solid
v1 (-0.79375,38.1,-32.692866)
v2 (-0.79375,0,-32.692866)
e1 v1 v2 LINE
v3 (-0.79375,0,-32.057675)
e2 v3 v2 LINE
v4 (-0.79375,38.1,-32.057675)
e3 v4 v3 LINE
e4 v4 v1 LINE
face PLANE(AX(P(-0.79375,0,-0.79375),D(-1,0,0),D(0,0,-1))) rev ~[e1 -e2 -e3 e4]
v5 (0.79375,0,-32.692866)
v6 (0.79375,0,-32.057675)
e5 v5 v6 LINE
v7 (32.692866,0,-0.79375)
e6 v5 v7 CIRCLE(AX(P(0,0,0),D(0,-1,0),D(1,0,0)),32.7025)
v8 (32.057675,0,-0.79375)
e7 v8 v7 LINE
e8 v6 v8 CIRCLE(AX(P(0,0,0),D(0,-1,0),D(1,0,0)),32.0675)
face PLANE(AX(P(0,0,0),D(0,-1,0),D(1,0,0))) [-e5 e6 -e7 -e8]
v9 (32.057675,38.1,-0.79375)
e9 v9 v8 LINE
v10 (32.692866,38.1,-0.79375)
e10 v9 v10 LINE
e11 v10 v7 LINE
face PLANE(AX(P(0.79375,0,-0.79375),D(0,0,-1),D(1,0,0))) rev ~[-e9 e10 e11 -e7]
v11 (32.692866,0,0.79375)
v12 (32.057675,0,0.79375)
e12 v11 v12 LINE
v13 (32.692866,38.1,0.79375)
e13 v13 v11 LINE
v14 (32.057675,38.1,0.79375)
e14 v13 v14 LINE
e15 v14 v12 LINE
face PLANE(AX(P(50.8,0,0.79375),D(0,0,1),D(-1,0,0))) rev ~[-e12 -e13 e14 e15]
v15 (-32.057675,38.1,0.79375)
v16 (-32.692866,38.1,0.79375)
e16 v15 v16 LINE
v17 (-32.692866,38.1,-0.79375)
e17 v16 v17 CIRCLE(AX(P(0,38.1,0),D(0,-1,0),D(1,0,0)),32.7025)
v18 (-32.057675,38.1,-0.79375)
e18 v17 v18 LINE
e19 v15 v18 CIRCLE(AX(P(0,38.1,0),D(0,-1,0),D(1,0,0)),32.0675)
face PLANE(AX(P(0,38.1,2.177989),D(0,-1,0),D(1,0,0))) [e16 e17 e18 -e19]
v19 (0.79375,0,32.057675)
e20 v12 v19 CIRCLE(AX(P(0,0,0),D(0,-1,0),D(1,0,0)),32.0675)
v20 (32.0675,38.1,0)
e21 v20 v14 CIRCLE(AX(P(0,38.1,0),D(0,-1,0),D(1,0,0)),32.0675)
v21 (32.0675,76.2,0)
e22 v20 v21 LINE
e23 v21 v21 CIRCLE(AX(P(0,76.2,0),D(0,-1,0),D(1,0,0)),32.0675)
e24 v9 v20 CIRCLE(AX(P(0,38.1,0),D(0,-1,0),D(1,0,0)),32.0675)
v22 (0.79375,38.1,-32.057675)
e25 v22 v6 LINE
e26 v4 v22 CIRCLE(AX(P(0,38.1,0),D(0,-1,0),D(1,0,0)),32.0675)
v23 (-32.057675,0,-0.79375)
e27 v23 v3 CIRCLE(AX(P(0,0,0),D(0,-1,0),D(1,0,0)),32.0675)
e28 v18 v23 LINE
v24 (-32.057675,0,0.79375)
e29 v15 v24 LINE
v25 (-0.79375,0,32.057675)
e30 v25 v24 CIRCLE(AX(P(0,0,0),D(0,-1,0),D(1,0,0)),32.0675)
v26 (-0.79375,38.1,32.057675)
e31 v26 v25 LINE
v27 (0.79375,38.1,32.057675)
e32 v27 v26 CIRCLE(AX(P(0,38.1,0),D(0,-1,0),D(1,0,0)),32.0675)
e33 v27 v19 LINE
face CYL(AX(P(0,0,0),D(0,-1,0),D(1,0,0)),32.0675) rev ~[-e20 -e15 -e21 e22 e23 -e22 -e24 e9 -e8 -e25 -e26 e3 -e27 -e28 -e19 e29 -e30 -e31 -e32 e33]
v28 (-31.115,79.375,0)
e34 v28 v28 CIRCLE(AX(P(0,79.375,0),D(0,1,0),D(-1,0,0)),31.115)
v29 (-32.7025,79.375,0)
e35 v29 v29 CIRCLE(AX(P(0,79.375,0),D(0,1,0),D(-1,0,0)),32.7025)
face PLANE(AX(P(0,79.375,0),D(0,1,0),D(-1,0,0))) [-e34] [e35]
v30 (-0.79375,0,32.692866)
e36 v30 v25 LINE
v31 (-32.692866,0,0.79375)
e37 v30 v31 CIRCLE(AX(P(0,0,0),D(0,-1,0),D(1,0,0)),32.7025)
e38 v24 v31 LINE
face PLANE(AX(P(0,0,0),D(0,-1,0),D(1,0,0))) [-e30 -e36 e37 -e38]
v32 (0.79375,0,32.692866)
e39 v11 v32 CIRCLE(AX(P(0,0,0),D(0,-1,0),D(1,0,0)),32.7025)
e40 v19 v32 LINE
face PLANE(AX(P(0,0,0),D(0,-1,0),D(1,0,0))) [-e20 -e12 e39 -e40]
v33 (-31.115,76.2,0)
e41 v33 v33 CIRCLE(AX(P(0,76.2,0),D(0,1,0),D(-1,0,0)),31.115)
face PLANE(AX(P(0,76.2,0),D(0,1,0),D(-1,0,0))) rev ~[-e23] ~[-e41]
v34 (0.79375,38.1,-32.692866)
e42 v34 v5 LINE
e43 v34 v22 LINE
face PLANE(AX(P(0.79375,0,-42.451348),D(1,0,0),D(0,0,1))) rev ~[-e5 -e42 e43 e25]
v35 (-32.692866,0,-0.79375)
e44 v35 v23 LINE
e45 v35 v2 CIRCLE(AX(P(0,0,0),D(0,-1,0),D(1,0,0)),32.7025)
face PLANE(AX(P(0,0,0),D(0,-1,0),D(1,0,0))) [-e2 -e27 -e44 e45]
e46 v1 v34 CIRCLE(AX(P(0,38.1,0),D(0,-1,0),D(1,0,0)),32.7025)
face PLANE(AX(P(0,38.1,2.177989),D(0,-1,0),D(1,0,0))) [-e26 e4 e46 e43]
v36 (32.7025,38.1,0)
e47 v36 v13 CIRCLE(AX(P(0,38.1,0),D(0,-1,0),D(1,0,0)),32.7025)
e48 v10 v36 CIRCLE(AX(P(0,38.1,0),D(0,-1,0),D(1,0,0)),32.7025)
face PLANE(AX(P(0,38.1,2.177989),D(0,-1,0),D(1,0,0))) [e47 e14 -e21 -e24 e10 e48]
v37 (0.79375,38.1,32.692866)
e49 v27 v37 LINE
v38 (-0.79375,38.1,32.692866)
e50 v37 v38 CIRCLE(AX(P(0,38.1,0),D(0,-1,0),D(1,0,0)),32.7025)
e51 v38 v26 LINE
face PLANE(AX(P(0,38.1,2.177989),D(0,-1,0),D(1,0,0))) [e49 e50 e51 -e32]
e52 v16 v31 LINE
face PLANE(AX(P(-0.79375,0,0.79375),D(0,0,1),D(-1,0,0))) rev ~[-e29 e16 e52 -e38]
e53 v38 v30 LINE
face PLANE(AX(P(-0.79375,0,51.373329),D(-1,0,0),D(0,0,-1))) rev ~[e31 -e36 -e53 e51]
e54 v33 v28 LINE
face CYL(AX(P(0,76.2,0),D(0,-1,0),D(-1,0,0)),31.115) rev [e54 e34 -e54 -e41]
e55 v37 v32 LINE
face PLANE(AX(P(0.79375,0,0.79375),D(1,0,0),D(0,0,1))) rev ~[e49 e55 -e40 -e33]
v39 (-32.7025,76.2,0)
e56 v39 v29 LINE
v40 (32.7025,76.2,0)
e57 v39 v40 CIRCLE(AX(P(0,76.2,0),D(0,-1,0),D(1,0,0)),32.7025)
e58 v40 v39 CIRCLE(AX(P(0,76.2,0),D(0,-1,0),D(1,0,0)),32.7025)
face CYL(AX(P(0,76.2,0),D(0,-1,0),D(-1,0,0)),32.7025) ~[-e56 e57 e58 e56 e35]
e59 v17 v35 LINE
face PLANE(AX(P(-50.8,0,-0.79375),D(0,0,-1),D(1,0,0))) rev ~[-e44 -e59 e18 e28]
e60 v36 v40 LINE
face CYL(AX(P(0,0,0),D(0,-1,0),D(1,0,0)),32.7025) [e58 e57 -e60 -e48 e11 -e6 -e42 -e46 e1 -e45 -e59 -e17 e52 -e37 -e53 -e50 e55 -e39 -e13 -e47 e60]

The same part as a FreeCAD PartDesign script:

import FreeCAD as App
import Part
import Sketcher
from FreeCAD import Vector
Q = App.Units.Quantity

doc = App.newDocument("Part")
body = doc.addObject("PartDesign::Body", "Body")

sketch1 = body.newObject("Sketcher::SketchObject", "Sketch")
sketch1.AttachmentSupport = (doc.getObject("XZ_Plane"), [""])
sketch1.MapMode = "FlatFace"
sketch1.addGeometry([
    Part.Circle(Vector(0, 0, 0), Vector(0, 0, 1), 32.7025),
    Part.Circle(Vector(0, 0, 0), Vector(0, 0, 1), 32.0675),
], False)
sketch1.addConstraint([
    Sketcher.Constraint("Coincident", 0, 3, -1, 1),
    Sketcher.Constraint("Coincident", 1, 3, -1, 1),
    Sketcher.Constraint("Diameter", 0, Q("2.575 in")),
    Sketcher.Constraint("Diameter", 1, Q("2.525 in")),
])
pad1 = body.newObject("PartDesign::Pad", "Pad")
pad1.Profile = sketch1
pad1.Length = Q("3 in")
pad1.Reversed = True

sketch2 = body.newObject("Sketcher::SketchObject", "Sketch001")
sketch2.AttachmentSupport = (doc.getObject("XZ_Plane"), [""])
sketch2.MapMode = "FlatFace"
sketch2.addGeometry([
    Part.LineSegment(Vector(0.79375, 0.79375, 0), Vector(0.79375, 51.373329, 0)),
    Part.LineSegment(Vector(0.79375, 51.373329, 0), Vector(-0.79375, 51.373329, 0)),
    Part.LineSegment(Vector(-0.79375, 51.373329, 0), Vector(-0.79375, 0.79375, 0)),
    Part.LineSegment(Vector(-0.79375, 0.79375, 0), Vector(-50.8, 0.79375, 0)),
    Part.LineSegment(Vector(-50.8, 0.79375, 0), Vector(-50.8, -0.79375, 0)),
    Part.LineSegment(Vector(-50.8, -0.79375, 0), Vector(-0.79375, -0.79375, 0)),
    Part.LineSegment(Vector(-0.79375, -0.79375, 0), Vector(-0.79375, -42.451348, 0)),
    Part.LineSegment(Vector(-0.79375, -42.451348, 0), Vector(0.79375, -42.451348, 0)),
    Part.LineSegment(Vector(0.79375, -42.451348, 0), Vector(0.79375, -0.79375, 0)),
    Part.LineSegment(Vector(0.79375, -0.79375, 0), Vector(50.8, -0.79375, 0)),
    Part.LineSegment(Vector(50.8, -0.79375, 0), Vector(50.8, 0.79375, 0)),
    Part.LineSegment(Vector(50.8, 0.79375, 0), Vector(0.79375, 0.79375, 0)),
], False)
sketch2.addConstraint([
    Sketcher.Constraint("Coincident", 0, 2, 1, 1),
    Sketcher.Constraint("Coincident", 1, 2, 2, 1),
    Sketcher.Constraint("Coincident", 2, 2, 3, 1),
    Sketcher.Constraint("Coincident", 3, 2, 4, 1),
    Sketcher.Constraint("Coincident", 4, 2, 5, 1),
    Sketcher.Constraint("Coincident", 5, 2, 6, 1),
    Sketcher.Constraint("Coincident", 6, 2, 7, 1),
    Sketcher.Constraint("Coincident", 7, 2, 8, 1),
    Sketcher.Constraint("Coincident", 8, 2, 9, 1),
    Sketcher.Constraint("Coincident", 9, 2, 10, 1),
    Sketcher.Constraint("Coincident", 10, 2, 11, 1),
    Sketcher.Constraint("Coincident", 11, 2, 0, 1),
    Sketcher.Constraint("Vertical", 0),
    Sketcher.Constraint("Horizontal", 1),
    Sketcher.Constraint("Vertical", 2),
    Sketcher.Constraint("Horizontal", 3),
    Sketcher.Constraint("Vertical", 4),
    Sketcher.Constraint("Horizontal", 5),
    Sketcher.Constraint("Vertical", 6),
    Sketcher.Constraint("Horizontal", 7),
    Sketcher.Constraint("Vertical", 8),
    Sketcher.Constraint("Horizontal", 9),
    Sketcher.Constraint("Vertical", 10),
    Sketcher.Constraint("Horizontal", 11),
    Sketcher.Constraint("Symmetric", 2, 2, 8, 2, -1, 1),
    Sketcher.Constraint("Symmetric", 4, 2, 10, 2, -1, 1),
    Sketcher.Constraint("Symmetric", 5, 2, 8, 2, -2),
    Sketcher.Constraint("Vertical", 0, 2, 7, 2),
    Sketcher.Constraint("Equal", 7, 4),
    Sketcher.Constraint("DistanceX", 3, 2, -1, 1, Q("2 in")),
    Sketcher.Constraint("DistanceX", 1, 2, 1, 1, Q("0.0625 in")),
    Sketcher.Constraint("DistanceY", 0, 1, 0, 2, Q("50.579579 mm")),
    Sketcher.Constraint("DistanceY", 6, 2, 2, 2, Q("43.245098 mm")),
])
pocket1 = body.newObject("PartDesign::Pocket", "Pocket")
pocket1.Profile = sketch2
pocket1.Length = Q("1.5 in")

sketch3 = body.newObject("Sketcher::SketchObject", "Sketch002")
sketch3.AttachmentSupport = (doc.getObject("XZ_Plane"), [""])
sketch3.MapMode = "FlatFace"
sketch3.AttachmentOffset = App.Placement(Vector(0, 0, -3 * 25.4), App.Rotation())
sketch3.addGeometry([
    Part.Circle(Vector(0, 0, 0), Vector(0, 0, 1), 32.7025),
    Part.Circle(Vector(0, 0, 0), Vector(0, 0, 1), 31.115),
], False)
sketch3.addConstraint([
    Sketcher.Constraint("Coincident", 0, 3, -1, 1),
    Sketcher.Constraint("Coincident", 1, 3, -1, 1),
    Sketcher.Constraint("Diameter", 1, Q("2.45 in")),
    Sketcher.Constraint("Diameter", 0, Q("2.575 in")),
])
pad2 = body.newObject("PartDesign::Pad", "Pad001")
pad2.Profile = sketch3
pad2.Length = Q("0.125 in")
pad2.Reversed = True

doc.recompute()
